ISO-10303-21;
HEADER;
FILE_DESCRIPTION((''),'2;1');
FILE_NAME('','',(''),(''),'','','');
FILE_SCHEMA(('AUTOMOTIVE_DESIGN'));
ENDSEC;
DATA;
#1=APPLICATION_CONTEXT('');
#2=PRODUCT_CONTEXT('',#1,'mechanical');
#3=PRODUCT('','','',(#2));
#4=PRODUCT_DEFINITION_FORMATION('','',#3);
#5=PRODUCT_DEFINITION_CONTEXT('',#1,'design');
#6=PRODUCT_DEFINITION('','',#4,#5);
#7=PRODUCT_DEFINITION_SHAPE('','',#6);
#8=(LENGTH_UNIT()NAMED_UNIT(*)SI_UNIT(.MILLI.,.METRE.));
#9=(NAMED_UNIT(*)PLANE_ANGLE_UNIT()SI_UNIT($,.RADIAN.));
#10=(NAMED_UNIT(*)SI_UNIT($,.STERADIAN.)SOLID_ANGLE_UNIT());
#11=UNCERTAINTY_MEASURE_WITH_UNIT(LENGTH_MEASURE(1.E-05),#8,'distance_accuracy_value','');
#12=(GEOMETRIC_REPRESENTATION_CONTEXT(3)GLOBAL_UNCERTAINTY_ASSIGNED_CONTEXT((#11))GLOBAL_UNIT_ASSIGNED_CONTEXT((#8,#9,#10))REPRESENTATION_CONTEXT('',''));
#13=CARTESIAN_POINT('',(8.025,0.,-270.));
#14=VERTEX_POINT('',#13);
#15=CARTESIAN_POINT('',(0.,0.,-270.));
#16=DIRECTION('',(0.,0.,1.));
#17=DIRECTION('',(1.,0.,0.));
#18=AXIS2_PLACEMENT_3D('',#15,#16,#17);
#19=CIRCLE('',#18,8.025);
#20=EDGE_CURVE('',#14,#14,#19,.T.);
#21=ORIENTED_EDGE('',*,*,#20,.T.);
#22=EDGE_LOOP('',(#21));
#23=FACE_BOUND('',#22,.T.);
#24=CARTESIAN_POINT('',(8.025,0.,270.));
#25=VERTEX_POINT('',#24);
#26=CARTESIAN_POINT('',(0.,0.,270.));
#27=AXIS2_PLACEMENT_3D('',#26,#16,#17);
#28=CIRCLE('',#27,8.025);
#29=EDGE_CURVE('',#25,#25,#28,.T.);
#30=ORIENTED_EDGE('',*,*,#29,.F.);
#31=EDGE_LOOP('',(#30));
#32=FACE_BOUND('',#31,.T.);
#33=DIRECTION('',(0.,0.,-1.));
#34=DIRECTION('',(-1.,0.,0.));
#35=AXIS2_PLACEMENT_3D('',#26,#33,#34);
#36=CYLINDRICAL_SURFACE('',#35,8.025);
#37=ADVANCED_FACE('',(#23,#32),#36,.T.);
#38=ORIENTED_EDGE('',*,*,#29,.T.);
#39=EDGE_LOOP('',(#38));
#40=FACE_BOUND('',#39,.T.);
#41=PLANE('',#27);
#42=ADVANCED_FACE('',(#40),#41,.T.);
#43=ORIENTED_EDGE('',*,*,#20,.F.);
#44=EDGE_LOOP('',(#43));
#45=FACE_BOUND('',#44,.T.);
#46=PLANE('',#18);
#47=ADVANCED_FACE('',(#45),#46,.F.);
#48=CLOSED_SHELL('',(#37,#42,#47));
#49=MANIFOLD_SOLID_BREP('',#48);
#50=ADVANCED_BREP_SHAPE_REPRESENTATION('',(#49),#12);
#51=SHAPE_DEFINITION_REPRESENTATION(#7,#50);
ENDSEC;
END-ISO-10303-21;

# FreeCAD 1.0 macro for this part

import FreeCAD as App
import Part
import Sketcher
from FreeCAD import Vector
Q = App.Units.Quantity

doc = App.newDocument("Part")
params = doc.addObject("Spreadsheet::Sheet", "Params")
for row, (alias, value) in enumerate([
    ("sketch1_diameter", "16.05 mm"),
    ("pad1_length", "540 mm"),
], start=1):
    params.set(f"A{row}", alias)
    params.set(f"B{row}", "=" + value)
    params.setAlias(f"B{row}", alias)

body = doc.addObject("PartDesign::Body", "Body")

# Sketch on XY plane
sketch1 = body.newObject("Sketcher::SketchObject", "Sketch")
sketch1.AttachmentSupport = (doc.getObject("XY_Plane"), [""])
sketch1.MapMode = "FlatFace"
sketch1.addGeometry(Part.Circle(Vector(0, 0, 0), Vector(0, 0, 1), 8.025), False)
sketch1.addConstraint(Sketcher.Constraint("Coincident", 0, 3, -1, 1))
sketch1.addConstraint(Sketcher.Constraint("Diameter", 0, Q("16.05 mm")))
sketch1.setExpression("Constraints[1]", "Params.sketch1_diameter")
pad1 = body.newObject("PartDesign::Pad", "Pad")
pad1.Profile = sketch1
pad1.setExpression("Length", "Params.pad1_length")
pad1.Midplane = True

doc.recompute()
